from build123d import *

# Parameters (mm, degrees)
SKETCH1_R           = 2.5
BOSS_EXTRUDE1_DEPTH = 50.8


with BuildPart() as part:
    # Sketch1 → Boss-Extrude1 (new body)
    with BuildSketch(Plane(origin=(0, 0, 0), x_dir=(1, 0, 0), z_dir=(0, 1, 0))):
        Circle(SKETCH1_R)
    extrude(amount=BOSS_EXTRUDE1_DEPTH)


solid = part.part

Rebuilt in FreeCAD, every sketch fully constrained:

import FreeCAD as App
import Part
import Sketcher

V = App.Vector

doc = App.newDocument("Part")
body = doc.addObject("PartDesign::Body", "Body")

sketch1 = body.newObject("Sketcher::SketchObject", "Sketch")
sketch1.AttachmentSupport = (doc.getObject("XZ_Plane"), [""])
sketch1.MapMode = "FlatFace"
sketch1.addGeometry(Part.Circle(V(0, 0, 0), V(0, 0, 1), 2.5), False)
sketch1.addConstraint([
    Sketcher.Constraint("Coincident", 0, 3, -1, 1),
    Sketcher.Constraint("Diameter", 0, 5.0),
])
pad1 = body.newObject("PartDesign::Pad", "Pad")
pad1.Profile = sketch1
pad1.Length = 50.8
pad1.Reversed = True

doc.recompute()
